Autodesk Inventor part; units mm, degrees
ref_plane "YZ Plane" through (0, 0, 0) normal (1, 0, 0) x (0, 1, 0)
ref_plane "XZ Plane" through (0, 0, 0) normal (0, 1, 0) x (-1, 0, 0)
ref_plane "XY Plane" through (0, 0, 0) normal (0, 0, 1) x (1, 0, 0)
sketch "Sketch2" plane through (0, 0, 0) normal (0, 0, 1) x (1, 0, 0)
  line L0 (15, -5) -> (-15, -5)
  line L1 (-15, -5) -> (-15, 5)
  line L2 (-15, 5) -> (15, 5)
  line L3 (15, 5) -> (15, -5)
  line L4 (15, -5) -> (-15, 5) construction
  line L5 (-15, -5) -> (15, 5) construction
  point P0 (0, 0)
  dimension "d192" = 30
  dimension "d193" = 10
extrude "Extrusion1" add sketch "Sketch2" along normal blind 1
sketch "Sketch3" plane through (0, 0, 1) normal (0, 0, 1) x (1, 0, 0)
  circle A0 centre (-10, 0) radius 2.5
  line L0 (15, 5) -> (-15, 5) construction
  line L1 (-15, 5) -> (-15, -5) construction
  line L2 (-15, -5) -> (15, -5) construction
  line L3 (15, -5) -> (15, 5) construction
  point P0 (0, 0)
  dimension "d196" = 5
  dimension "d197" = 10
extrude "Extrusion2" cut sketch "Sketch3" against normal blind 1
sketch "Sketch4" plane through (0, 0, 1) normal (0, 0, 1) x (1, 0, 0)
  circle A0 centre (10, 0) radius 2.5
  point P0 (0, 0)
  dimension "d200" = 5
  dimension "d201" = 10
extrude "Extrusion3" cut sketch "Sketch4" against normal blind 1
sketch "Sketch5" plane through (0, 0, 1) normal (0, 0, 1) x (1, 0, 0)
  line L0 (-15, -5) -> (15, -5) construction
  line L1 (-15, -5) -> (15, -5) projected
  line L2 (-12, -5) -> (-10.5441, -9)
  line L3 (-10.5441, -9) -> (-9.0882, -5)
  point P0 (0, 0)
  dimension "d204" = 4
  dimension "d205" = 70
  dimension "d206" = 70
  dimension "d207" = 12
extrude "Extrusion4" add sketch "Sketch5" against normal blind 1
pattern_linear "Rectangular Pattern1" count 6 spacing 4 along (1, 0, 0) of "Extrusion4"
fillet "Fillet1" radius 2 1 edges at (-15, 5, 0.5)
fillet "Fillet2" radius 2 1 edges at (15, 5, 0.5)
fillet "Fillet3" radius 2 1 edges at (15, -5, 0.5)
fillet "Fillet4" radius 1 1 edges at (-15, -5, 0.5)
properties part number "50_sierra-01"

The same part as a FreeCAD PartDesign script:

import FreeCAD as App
import Part
import Sketcher

V = App.Vector
Q = App.Units.Quantity


def edges_at(feature, points):
    """Names of the edges that pass closest to the given points."""
    edges = feature.Shape.Edges
    near = lambda p: min(range(len(edges)), key=lambda i: edges[i].distToShape(Part.Vertex(*p))[0])
    return sorted({f"Edge{near(p) + 1}" for p in points})

doc = App.newDocument("Part")
params = doc.addObject("Spreadsheet::Sheet", "Params")
for row, (alias, value) in enumerate([
    ("sketch1_width", "30 mm"),
    ("sketch1_height", "10 mm"),
    ("pad1_length", "1 mm"),
    ("sketch2_diameter", "5 mm"),
    ("pocket1_length", "1 mm"),
    ("sketch3_diameter", "5 mm"),
    ("pocket2_length", "1 mm"),
    ("pad2_length", "1 mm"),
    ("linearpattern_pitch", "4 mm"),
    ("fillet_radius", "2 mm"),
    ("fillet2_radius", "2 mm"),
    ("fillet3_radius", "2 mm"),
    ("fillet4_radius", "1 mm"),
], start=1):
    params.set(f"A{row}", alias)
    params.set(f"B{row}", "=" + value)
    params.setAlias(f"B{row}", alias)

body = doc.addObject("PartDesign::Body", "Body")

# Sketch on XY plane
sketch1 = body.newObject("Sketcher::SketchObject", "Sketch")
sketch1.AttachmentSupport = (doc.getObject("XY_Plane"), [""])
sketch1.MapMode = "FlatFace"
sketch1.addGeometry([
    Part.LineSegment(V(-15, -5, 0), V(15, -5, 0)),
    Part.LineSegment(V(15, -5, 0), V(15, 5, 0)),
    Part.LineSegment(V(15, 5, 0), V(-15, 5, 0)),
    Part.LineSegment(V(-15, 5, 0), V(-15, -5, 0)),
], False)
sketch1.addConstraint([
    Sketcher.Constraint("Coincident", 0, 2, 1, 1),
    Sketcher.Constraint("Coincident", 1, 2, 2, 1),
    Sketcher.Constraint("Coincident", 2, 2, 3, 1),
    Sketcher.Constraint("Coincident", 3, 2, 0, 1),
    Sketcher.Constraint("Horizontal", 0),
    Sketcher.Constraint("Vertical", 1),
    Sketcher.Constraint("Horizontal", 2),
    Sketcher.Constraint("Vertical", 3),
    Sketcher.Constraint("Symmetric", 0, 2, 2, 2, -1, 1),
    Sketcher.Constraint("DistanceX", 0, 1, 0, 2, Q("30 mm")),
    Sketcher.Constraint("DistanceY", 1, 1, 1, 2, Q("10 mm")),
])
sketch1.setExpression("Constraints[9]", "Params.sketch1_width")
sketch1.setExpression("Constraints[10]", "Params.sketch1_height")
pad1 = body.newObject("PartDesign::Pad", "Pad")
pad1.Profile = sketch1
pad1.setExpression("Length", "Params.pad1_length")

# Sketch on XY plane
sketch2 = body.newObject("Sketcher::SketchObject", "Sketch001")
sketch2.AttachmentSupport = (doc.getObject("XY_Plane"), [""])
sketch2.MapMode = "FlatFace"
sketch2.AttachmentOffset = App.Placement(V(0, 0, 1), App.Rotation())
sketch2.addGeometry(Part.Circle(V(-10, 0, 0), V(0, 0, 1), 2.5), False)
sketch2.addConstraint([
    Sketcher.Constraint("PointOnObject", 0, 3, -1),
    Sketcher.Constraint("Diameter", 0, Q("5 mm")),
    Sketcher.Constraint("DistanceX", 0, 3, -1, 1, Q("10 mm")),
])
sketch2.setExpression("Constraints[1]", "Params.sketch2_diameter")
pocket1 = body.newObject("PartDesign::Pocket", "Pocket")
pocket1.Profile = sketch2
pocket1.setExpression("Length", "Params.pocket1_length")

# Sketch on XY plane
sketch3 = body.newObject("Sketcher::SketchObject", "Sketch002")
sketch3.AttachmentSupport = (doc.getObject("XY_Plane"), [""])
sketch3.MapMode = "FlatFace"
sketch3.AttachmentOffset = App.Placement(V(0, 0, 1), App.Rotation())
sketch3.addGeometry(Part.Circle(V(10, 0, 0), V(0, 0, 1), 2.5), False)
sketch3.addConstraint([
    Sketcher.Constraint("PointOnObject", 0, 3, -1),
    Sketcher.Constraint("Diameter", 0, Q("5 mm")),
    Sketcher.Constraint("DistanceX", -1, 1, 0, 3, Q("10 mm")),
])
sketch3.setExpression("Constraints[1]", "Params.sketch3_diameter")
pocket2 = body.newObject("PartDesign::Pocket", "Pocket001")
pocket2.Profile = sketch3
pocket2.setExpression("Length", "Params.pocket2_length")

# Sketch on XY plane
sketch4 = body.newObject("Sketcher::SketchObject", "Sketch003")
sketch4.AttachmentSupport = (doc.getObject("XY_Plane"), [""])
sketch4.MapMode = "FlatFace"
sketch4.AttachmentOffset = App.Placement(V(0, 0, 1), App.Rotation())
sketch4.addGeometry([
    Part.LineSegment(V(-9.1, -5, 0), V(-12, -5, 0)),
    Part.LineSegment(V(-12, -5, 0), V(-10.5, -9, 0)),
    Part.LineSegment(V(-10.5, -9, 0), V(-9.1, -5, 0)),
], False)
sketch4.addConstraint([
    Sketcher.Constraint("Coincident", 0, 2, 1, 1),
    Sketcher.Constraint("Coincident", 1, 2, 2, 1),
    Sketcher.Constraint("Coincident", 2, 2, 0, 1),
    Sketcher.Constraint("Horizontal", 0),
    Sketcher.Constraint("Equal", 1, 2),
    Sketcher.Constraint("Angle", 1, Q("-69.9998 deg")),
    Sketcher.Constraint("DistanceX", 0, 2, -1, 1, Q("12 mm")),
    Sketcher.Constraint("DistanceY", 1, 2, 0, 2, Q("4 mm")),
    Sketcher.Constraint("DistanceY", 0, 2, -1, 1, Q("5 mm")),
])
pad2 = body.newObject("PartDesign::Pad", "Pad001")
pad2.Profile = sketch4
pad2.setExpression("Length", "Params.pad2_length")
pad2.Reversed = True
doc.recompute()

linearpattern = body.newObject("PartDesign::LinearPattern", "LinearPattern")
linearpattern.Originals = [pad2]
linearpattern.Direction = (doc.getObject("X_Axis"), [""])
linearpattern.Mode = "offset"
linearpattern.setExpression("Offset", "Params.linearpattern_pitch")
linearpattern.Occurrences = 6
body.Tip = linearpattern
doc.recompute()

fillet = body.newObject("PartDesign::Fillet", "Fillet")
fillet.Base = (linearpattern, edges_at(linearpattern, [(-15, 5, 0.5)]))
fillet.setExpression("Radius", "Params.fillet_radius")
doc.recompute()

fillet2 = body.newObject("PartDesign::Fillet", "Fillet001")
fillet2.Base = (fillet, edges_at(fillet, [(15, 5, 0.5)]))
fillet2.setExpression("Radius", "Params.fillet2_radius")
doc.recompute()

fillet3 = body.newObject("PartDesign::Fillet", "Fillet002")
fillet3.Base = (fillet2, edges_at(fillet2, [(15, -5, 0.5)]))
fillet3.setExpression("Radius", "Params.fillet3_radius")
doc.recompute()

fillet4 = body.newObject("PartDesign::Fillet", "Fillet003")
fillet4.Base = (fillet3, edges_at(fillet3, [(-15, -5, 0.5)]))
fillet4.setExpression("Radius", "Params.fillet4_radius")

doc.recompute()
